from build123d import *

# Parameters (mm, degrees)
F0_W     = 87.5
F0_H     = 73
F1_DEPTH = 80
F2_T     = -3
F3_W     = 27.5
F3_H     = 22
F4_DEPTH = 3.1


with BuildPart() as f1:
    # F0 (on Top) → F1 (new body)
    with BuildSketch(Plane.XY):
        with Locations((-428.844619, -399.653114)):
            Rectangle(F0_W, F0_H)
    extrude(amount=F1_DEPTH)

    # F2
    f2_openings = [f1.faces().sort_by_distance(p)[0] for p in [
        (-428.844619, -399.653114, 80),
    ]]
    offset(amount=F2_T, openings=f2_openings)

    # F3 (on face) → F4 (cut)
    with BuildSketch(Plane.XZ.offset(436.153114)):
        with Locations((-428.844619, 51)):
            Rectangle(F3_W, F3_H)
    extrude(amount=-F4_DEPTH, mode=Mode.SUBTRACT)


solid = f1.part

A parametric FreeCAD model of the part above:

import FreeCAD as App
import Part
import Sketcher
from FreeCAD import Vector
Q = App.Units.Quantity


def faces_at(feature, points):
    """Names of the faces that lie closest to the given points."""
    faces = feature.Shape.Faces
    near = lambda p: min(range(len(faces)), key=lambda i: faces[i].distToShape(Part.Vertex(*p))[0])
    return sorted({f"Face{near(p) + 1}" for p in points})

doc = App.newDocument("Part")
body = doc.addObject("PartDesign::Body", "Body")

sketch1 = doc.addObject("Sketcher::SketchObject", "Sketch")
body.addObject(sketch1)
sketch1.AttachmentSupport = (doc.XY_Plane, [""])
sketch1.MapMode = "FlatFace"
sketch1.addGeometry([
    Part.LineSegment(Vector(-472.594619, -363.153114, 0), Vector(-472.594619, -436.153114, 0)),
    Part.LineSegment(Vector(-472.594619, -436.153114, 0), Vector(-385.094619, -436.153114, 0)),
    Part.LineSegment(Vector(-385.094619, -436.153114, 0), Vector(-385.094619, -363.153114, 0)),
    Part.LineSegment(Vector(-385.094619, -363.153114, 0), Vector(-472.594619, -363.153114, 0)),
], False)
sketch1.addConstraint([
    Sketcher.Constraint("Coincident", 0, 2, 1, 1),
    Sketcher.Constraint("Coincident", 1, 2, 2, 1),
    Sketcher.Constraint("Coincident", 2, 2, 3, 1),
    Sketcher.Constraint("Coincident", 3, 2, 0, 1),
    Sketcher.Constraint("Vertical", 0),
    Sketcher.Constraint("Horizontal", 1),
    Sketcher.Constraint("Vertical", 2),
    Sketcher.Constraint("Horizontal", 3),
    Sketcher.Constraint("DistanceY", 0, 2, 0, 1, Q("73 mm")),
    Sketcher.Constraint("DistanceX", 1, 1, 1, 2, Q("87.5 mm")),
    Sketcher.Constraint("DistanceX", 0, 2, -1, 1, Q("472.594619 mm")),
    Sketcher.Constraint("DistanceY", 0, 2, -1, 1, Q("436.153114 mm")),
])
pad1 = doc.addObject("PartDesign::Pad", "Pad")
body.addObject(pad1)
pad1.Profile = sketch1
pad1.Length = 80
doc.recompute()

thickness = doc.addObject("PartDesign::Thickness", "Thickness")
body.addObject(thickness)
thickness.Base = (pad1, faces_at(pad1, [(-428.845, -399.653, 80)]))
thickness.Value = 3
thickness.Reversed = True
thickness.Join = "Arc"

sketch2 = doc.addObject("Sketcher::SketchObject", "Sketch001")
body.addObject(sketch2)
sketch2.AttachmentSupport = (doc.XZ_Plane, [""])
sketch2.MapMode = "FlatFace"
sketch2.AttachmentOffset = App.Placement(Vector(0, 0, 436.153114), App.Rotation())
sketch2.addGeometry([
    Part.LineSegment(Vector(-442.594619, 62, 0), Vector(-442.594619, 40, 0)),
    Part.LineSegment(Vector(-442.594619, 40, 0), Vector(-415.094619, 40, 0)),
    Part.LineSegment(Vector(-415.094619, 40, 0), Vector(-415.094619, 62, 0)),
    Part.LineSegment(Vector(-415.094619, 62, 0), Vector(-442.594619, 62, 0)),
], False)
sketch2.addConstraint([
    Sketcher.Constraint("Coincident", 0, 2, 1, 1),
    Sketcher.Constraint("Coincident", 1, 2, 2, 1),
    Sketcher.Constraint("Coincident", 2, 2, 3, 1),
    Sketcher.Constraint("Coincident", 3, 2, 0, 1),
    Sketcher.Constraint("Vertical", 0),
    Sketcher.Constraint("Horizontal", 1),
    Sketcher.Constraint("Vertical", 2),
    Sketcher.Constraint("Horizontal", 3),
    Sketcher.Constraint("DistanceY", 0, 2, 0, 1, Q("22 mm")),
    Sketcher.Constraint("DistanceX", 1, 1, 1, 2, Q("27.5 mm")),
    Sketcher.Constraint("DistanceY", -1, 1, 0, 2, Q("40 mm")),
    Sketcher.Constraint("DistanceX", 0, 2, -1, 1, Q("442.594619 mm")),
])
pocket1 = doc.addObject("PartDesign::Pocket", "Pocket")
body.addObject(pocket1)
pocket1.Profile = sketch2
pocket1.Length = 3.1

doc.recompute()
